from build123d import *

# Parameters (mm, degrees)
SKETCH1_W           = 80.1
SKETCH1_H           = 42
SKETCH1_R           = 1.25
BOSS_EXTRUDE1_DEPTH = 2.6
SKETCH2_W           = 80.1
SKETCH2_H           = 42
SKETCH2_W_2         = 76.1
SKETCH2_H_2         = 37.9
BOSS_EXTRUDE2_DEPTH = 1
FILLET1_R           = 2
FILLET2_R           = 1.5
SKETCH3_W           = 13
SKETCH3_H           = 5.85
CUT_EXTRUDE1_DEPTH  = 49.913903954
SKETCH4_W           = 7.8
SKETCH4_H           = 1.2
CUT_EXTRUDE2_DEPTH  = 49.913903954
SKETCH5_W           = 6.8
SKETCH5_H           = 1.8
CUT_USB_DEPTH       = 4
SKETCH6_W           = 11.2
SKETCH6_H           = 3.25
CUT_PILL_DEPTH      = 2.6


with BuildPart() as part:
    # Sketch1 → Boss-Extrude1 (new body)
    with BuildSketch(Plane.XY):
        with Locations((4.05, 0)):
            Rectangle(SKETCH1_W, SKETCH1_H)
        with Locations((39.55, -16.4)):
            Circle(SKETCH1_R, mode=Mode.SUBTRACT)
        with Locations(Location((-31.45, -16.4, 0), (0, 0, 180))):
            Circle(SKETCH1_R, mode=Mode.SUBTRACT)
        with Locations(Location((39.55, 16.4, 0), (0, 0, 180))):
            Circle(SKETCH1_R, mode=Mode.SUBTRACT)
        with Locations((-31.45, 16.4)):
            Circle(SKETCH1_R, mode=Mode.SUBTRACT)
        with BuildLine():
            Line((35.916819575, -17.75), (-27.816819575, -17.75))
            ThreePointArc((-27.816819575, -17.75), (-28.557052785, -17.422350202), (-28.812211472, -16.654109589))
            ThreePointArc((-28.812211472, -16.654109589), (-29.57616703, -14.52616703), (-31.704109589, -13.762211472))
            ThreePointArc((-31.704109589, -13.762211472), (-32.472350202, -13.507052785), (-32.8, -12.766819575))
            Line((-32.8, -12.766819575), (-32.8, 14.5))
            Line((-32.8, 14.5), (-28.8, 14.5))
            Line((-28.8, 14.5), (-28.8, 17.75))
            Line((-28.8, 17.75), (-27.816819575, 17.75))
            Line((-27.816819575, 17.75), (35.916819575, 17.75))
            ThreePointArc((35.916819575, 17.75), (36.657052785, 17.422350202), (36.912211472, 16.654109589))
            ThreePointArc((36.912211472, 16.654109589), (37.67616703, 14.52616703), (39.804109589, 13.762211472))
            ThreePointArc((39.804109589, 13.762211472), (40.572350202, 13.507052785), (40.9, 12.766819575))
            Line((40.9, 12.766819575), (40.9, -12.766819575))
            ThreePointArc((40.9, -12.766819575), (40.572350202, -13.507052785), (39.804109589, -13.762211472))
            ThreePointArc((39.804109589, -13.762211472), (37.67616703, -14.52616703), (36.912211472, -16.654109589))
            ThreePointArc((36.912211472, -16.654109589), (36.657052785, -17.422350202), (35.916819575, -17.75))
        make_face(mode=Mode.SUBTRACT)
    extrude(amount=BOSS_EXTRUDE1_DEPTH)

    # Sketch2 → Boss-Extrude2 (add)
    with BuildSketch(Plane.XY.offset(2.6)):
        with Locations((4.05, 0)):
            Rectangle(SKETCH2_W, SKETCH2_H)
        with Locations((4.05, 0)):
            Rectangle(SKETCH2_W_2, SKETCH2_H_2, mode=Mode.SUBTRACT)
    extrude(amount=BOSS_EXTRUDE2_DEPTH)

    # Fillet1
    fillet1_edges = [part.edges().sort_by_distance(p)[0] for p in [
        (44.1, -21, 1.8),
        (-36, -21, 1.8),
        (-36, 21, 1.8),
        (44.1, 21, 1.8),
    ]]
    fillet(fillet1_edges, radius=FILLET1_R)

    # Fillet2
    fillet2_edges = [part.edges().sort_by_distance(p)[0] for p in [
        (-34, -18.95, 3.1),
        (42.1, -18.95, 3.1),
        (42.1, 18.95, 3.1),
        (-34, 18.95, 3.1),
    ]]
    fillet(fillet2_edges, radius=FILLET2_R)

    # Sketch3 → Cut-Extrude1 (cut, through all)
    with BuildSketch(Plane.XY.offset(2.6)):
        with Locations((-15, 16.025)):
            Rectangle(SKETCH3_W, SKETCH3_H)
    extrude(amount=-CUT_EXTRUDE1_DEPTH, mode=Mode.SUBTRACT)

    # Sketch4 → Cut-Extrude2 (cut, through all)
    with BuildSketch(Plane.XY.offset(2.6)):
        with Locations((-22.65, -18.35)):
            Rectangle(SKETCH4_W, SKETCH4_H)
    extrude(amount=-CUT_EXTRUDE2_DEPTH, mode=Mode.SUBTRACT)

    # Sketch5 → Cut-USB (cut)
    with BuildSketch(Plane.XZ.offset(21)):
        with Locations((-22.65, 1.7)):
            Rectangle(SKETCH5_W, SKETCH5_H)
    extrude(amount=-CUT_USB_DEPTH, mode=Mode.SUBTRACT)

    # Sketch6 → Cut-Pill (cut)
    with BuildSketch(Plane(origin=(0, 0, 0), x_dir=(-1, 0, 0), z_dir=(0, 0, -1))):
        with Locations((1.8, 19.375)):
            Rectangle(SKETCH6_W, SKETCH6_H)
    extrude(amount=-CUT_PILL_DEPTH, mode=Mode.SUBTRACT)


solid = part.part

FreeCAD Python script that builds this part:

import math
import FreeCAD as App
import Part
import Sketcher


def edges_at(feature, points):
    """Names of the edges that pass closest to the given points."""
    edges = feature.Shape.Edges
    near = lambda p: min(range(len(edges)), key=lambda i: edges[i].distToShape(Part.Vertex(*p))[0])
    return sorted({f"Edge{near(p) + 1}" for p in points})


def add_polygon(sketch, points):
    """Adds a closed chain of lines whose ends are joined by coincident constraints."""
    first, n = sketch.GeometryCount, len(points)
    for a, b in zip(points, points[1:] + points[:1]):
        sketch.addGeometry(Part.LineSegment(App.Vector(*a, 0), App.Vector(*b, 0)), False)
    for i in range(n):
        sketch.addConstraint(Sketcher.Constraint("Coincident", first + i, 2, first + (i + 1) % n, 1))

doc = App.newDocument("Part")
body = doc.addObject("PartDesign::Body", "Body")

# Sketch on XY plane
sketch1 = body.newObject("Sketcher::SketchObject", "Sketch")
sketch1.AttachmentSupport = (doc.getObject("XY_Plane"), [""])
sketch1.MapMode = "FlatFace"
add_polygon(sketch1, [(-36, 21), (-36, -21), (44.1, -21), (44.1, 21)])  # lines 0-3
sketch1.addGeometry(Part.Circle(App.Vector(-31.4, -16.4, 0), App.Vector(0, 0, 1), 1.2), False)  # 4
sketch1.addGeometry(Part.Circle(App.Vector(39.5, -16.4, 0), App.Vector(0, 0, 1), 1.2), False)  # 5
sketch1.addGeometry(Part.Circle(App.Vector(-31.4, 16.4, 0), App.Vector(0, 0, 1), 1.2), False)  # 6
sketch1.addGeometry(Part.ArcOfCircle(Part.Circle(App.Vector(35.9, -16.8, 0), App.Vector(0, 0, 1), 1), math.radians(-90), math.radians(6)), False)  # 7
sketch1.addGeometry(Part.LineSegment(App.Vector(35.9, -17.8, 0), App.Vector(-27.8, -17.8, 0)), False)  # 8
sketch1.addGeometry(Part.ArcOfCircle(Part.Circle(App.Vector(-27.8, -16.8, 0), App.Vector(0, 0, 1), 1), math.radians(174), math.radians(270)), False)  # 9
sketch1.addGeometry(Part.ArcOfCircle(Part.Circle(App.Vector(-31.5, -16.4, 0), App.Vector(0, 0, 1), 2.7), math.radians(-6), math.radians(96)), False)  # 10
sketch1.addGeometry(Part.ArcOfCircle(Part.Circle(App.Vector(-31.8, -12.8, 0), App.Vector(0, 0, 1), 1), math.radians(-180), math.radians(-84)), False)  # 11
sketch1.addGeometry(Part.LineSegment(App.Vector(-32.8, -12.8, 0), App.Vector(-32.8, 14.5, 0)), False)  # 12
sketch1.addGeometry(Part.LineSegment(App.Vector(-32.8, 14.5, 0), App.Vector(-28.8, 14.5, 0)), False)  # 13
sketch1.addGeometry(Part.LineSegment(App.Vector(-28.8, 14.5, 0), App.Vector(-28.8, 17.8, 0)), False)  # 14
sketch1.addGeometry(Part.LineSegment(App.Vector(-28.8, 17.8, 0), App.Vector(35.9, 17.8, 0)), False)  # 15
sketch1.addGeometry(Part.ArcOfCircle(Part.Circle(App.Vector(35.9, 16.8, 0), App.Vector(0, 0, 1), 1), math.radians(-6), math.radians(90)), False)  # 16
sketch1.addGeometry(Part.ArcOfCircle(Part.Circle(App.Vector(39.6, 16.4, 0), App.Vector(0, 0, 1), 2.7), math.radians(174), math.radians(276)), False)  # 17
sketch1.addGeometry(Part.ArcOfCircle(Part.Circle(App.Vector(39.9, 12.8, 0), App.Vector(0, 0, 1), 1), math.radians(0), math.radians(96)), False)  # 18
sketch1.addGeometry(Part.LineSegment(App.Vector(40.9, 12.8, 0), App.Vector(40.9, -12.8, 0)), False)  # 19
sketch1.addGeometry(Part.ArcOfCircle(Part.Circle(App.Vector(39.9, -12.8, 0), App.Vector(0, 0, 1), 1), math.radians(-96), math.radians(0)), False)  # 20
sketch1.addGeometry(Part.ArcOfCircle(Part.Circle(App.Vector(39.6, -16.4, 0), App.Vector(0, 0, 1), 2.7), math.radians(84), math.radians(186)), False)  # 21
sketch1.addGeometry(Part.Circle(App.Vector(39.5, 16.4, 0), App.Vector(0, 0, 1), 1.2), False)  # 22
sketch1.addConstraint(Sketcher.Constraint("Tangent", 7, 1, 8, 1))
sketch1.addConstraint(Sketcher.Constraint("Tangent", 8, 2, 9, 2))
sketch1.addConstraint(Sketcher.Constraint("Tangent", 9, 1, 10, 1))
sketch1.addConstraint(Sketcher.Constraint("Tangent", 10, 2, 11, 2))
sketch1.addConstraint(Sketcher.Constraint("Tangent", 11, 1, 12, 1))
sketch1.addConstraint(Sketcher.Constraint("Coincident", 12, 2, 13, 1))
sketch1.addConstraint(Sketcher.Constraint("Coincident", 13, 2, 14, 1))
sketch1.addConstraint(Sketcher.Constraint("Coincident", 14, 2, 15, 1))
sketch1.addConstraint(Sketcher.Constraint("Tangent", 15, 2, 16, 2))
sketch1.addConstraint(Sketcher.Constraint("Tangent", 16, 1, 17, 1))
sketch1.addConstraint(Sketcher.Constraint("Tangent", 17, 2, 18, 2))
sketch1.addConstraint(Sketcher.Constraint("Tangent", 18, 1, 19, 1))
sketch1.addConstraint(Sketcher.Constraint("Tangent", 19, 2, 20, 2))
sketch1.addConstraint(Sketcher.Constraint("Tangent", 20, 1, 21, 1))
sketch1.addConstraint(Sketcher.Constraint("Tangent", 21, 2, 7, 2))
sketch1.addConstraint(Sketcher.Constraint("Vertical", 0))
sketch1.addConstraint(Sketcher.Constraint("Horizontal", 1))
sketch1.addConstraint(Sketcher.Constraint("Vertical", 2))
sketch1.addConstraint(Sketcher.Constraint("Horizontal", 3))
sketch1.addConstraint(Sketcher.Constraint("Horizontal", 8))
sketch1.addConstraint(Sketcher.Constraint("Vertical", 12))
sketch1.addConstraint(Sketcher.Constraint("Horizontal", 13))
sketch1.addConstraint(Sketcher.Constraint("Vertical", 14))
sketch1.addConstraint(Sketcher.Constraint("Horizontal", 15))
sketch1.addConstraint(Sketcher.Constraint("Vertical", 19))
sketch1.addConstraint(Sketcher.Constraint("Coincident", 10, 3, 4, 3))
sketch1.addConstraint(Sketcher.Constraint("Coincident", 21, 3, 5, 3))
sketch1.addConstraint(Sketcher.Constraint("Coincident", 22, 3, 17, 3))
sketch1.addConstraint(Sketcher.Constraint("Equal", 4, 5))
sketch1.addConstraint(Sketcher.Constraint("Equal", 5, 6))
sketch1.addConstraint(Sketcher.Constraint("Equal", 7, 9))
sketch1.addConstraint(Sketcher.Constraint("Equal", 9, 11))
sketch1.addConstraint(Sketcher.Constraint("Equal", 11, 16))
sketch1.addConstraint(Sketcher.Constraint("Equal", 10, 17))
sketch1.addConstraint(Sketcher.Constraint("Equal", 16, 18))
sketch1.addConstraint(Sketcher.Constraint("Equal", 18, 20))
sketch1.addConstraint(Sketcher.Constraint("Equal", 17, 21))
sketch1.addConstraint(Sketcher.Constraint("Equal", 6, 22))
sketch1.addConstraint(Sketcher.Constraint("Symmetric", 4, 3, 6, 3, -1))
sketch1.addConstraint(Sketcher.Constraint("Symmetric", 7, 3, 16, 3, -1))
sketch1.addConstraint(Sketcher.Constraint("Horizontal", 4, 3, 5, 3))
sketch1.addConstraint(Sketcher.Constraint("Horizontal", 6, 3, 17, 3))
sketch1.addConstraint(Sketcher.Constraint("Horizontal", 11, 3, 20, 3))
sketch1.addConstraint(Sketcher.Constraint("Radius", 7, 1.0))
sketch1.addConstraint(Sketcher.Constraint("Diameter", 4, 2.5))
sketch1.addConstraint(Sketcher.Constraint("DistanceX", 13, 1, 13, 2, 4.0))
sketch1.addConstraint(Sketcher.Constraint("DistanceY", 0, 2, 0, 1, 42.0))
sketch1.addConstraint(Sketcher.Constraint("Radius", 10, 2.65))
sketch1.addConstraint(Sketcher.Constraint("DistanceX", 1, 1, 1, 2, 80.1))
sketch1.addConstraint(Sketcher.Constraint("DistanceX", 0, 2, -1, 1, 36.0))
sketch1.addConstraint(Sketcher.Constraint("DistanceY", 0, 2, -1, 1, 21.0))
sketch1.addConstraint(Sketcher.Constraint("DistanceX", 4, 3, 5, 3, 71.0))
sketch1.addConstraint(Sketcher.Constraint("DistanceY", 14, 1, 14, 2, 3.25))
sketch1.addConstraint(Sketcher.Constraint("DistanceY", 4, 3, -1, 1, 16.4))
sketch1.addConstraint(Sketcher.Constraint("DistanceX", 11, 3, -1, 1, 31.8))
sketch1.addConstraint(Sketcher.Constraint("DistanceX", -1, 1, 18, 3, 39.9))
sketch1.addConstraint(Sketcher.Constraint("DistanceY", -1, 1, 12, 2, 14.5))
pad1 = body.newObject("PartDesign::Pad", "Pad")
pad1.Profile = sketch1
pad1.Length = 2.6

# Sketch on XY plane
sketch2 = body.newObject("Sketcher::SketchObject", "Sketch001")
sketch2.AttachmentSupport = (doc.getObject("XY_Plane"), [""])
sketch2.MapMode = "FlatFace"
sketch2.AttachmentOffset = App.Placement(App.Vector(0, 0, 2.6), App.Rotation())
add_polygon(sketch2, [(-36, 21), (-36, -21), (44, -21), (44, 21)])  # lines 0-3
add_polygon(sketch2, [(42, -19), (-34, -19), (-34, 19), (42, 19)])  # lines 4-7
sketch2.addConstraint(Sketcher.Constraint("Vertical", 0))
sketch2.addConstraint(Sketcher.Constraint("Horizontal", 1))
sketch2.addConstraint(Sketcher.Constraint("Vertical", 2))
sketch2.addConstraint(Sketcher.Constraint("Horizontal", 3))
sketch2.addConstraint(Sketcher.Constraint("Horizontal", 4))
sketch2.addConstraint(Sketcher.Constraint("Vertical", 5))
sketch2.addConstraint(Sketcher.Constraint("Horizontal", 6))
sketch2.addConstraint(Sketcher.Constraint("Vertical", 7))
sketch2.addConstraint(Sketcher.Constraint("DistanceY", 0, 2, 0, 1, 42.0))
sketch2.addConstraint(Sketcher.Constraint("DistanceX", 1, 1, 1, 2, 80.1))
sketch2.addConstraint(Sketcher.Constraint("DistanceX", 4, 2, 4, 1, 76.1))
sketch2.addConstraint(Sketcher.Constraint("DistanceY", 5, 1, 5, 2, 37.9))
sketch2.addConstraint(Sketcher.Constraint("DistanceX", 0, 2, -1, 1, 36.0))
sketch2.addConstraint(Sketcher.Constraint("DistanceY", 0, 2, -1, 1, 21.0))
sketch2.addConstraint(Sketcher.Constraint("DistanceX", 4, 2, -1, 1, 34.0))
sketch2.addConstraint(Sketcher.Constraint("DistanceY", 4, 2, -1, 1, 18.95))
pad2 = body.newObject("PartDesign::Pad", "Pad001")
pad2.Profile = sketch2
pad2.Length = 1
doc.recompute()

fillet = body.newObject("PartDesign::Fillet", "Fillet")
fillet.Base = (pad2, edges_at(pad2, [
    (44.1, -21, 1.8),
    (-36, -21, 1.8),
    (-36, 21, 1.8),
    (44.1, 21, 1.8),
]))
fillet.Radius = 2
doc.recompute()

fillet2 = body.newObject("PartDesign::Fillet", "Fillet001")
fillet2.Base = (fillet, edges_at(fillet, [
    (-34, -18.95, 3.1),
    (42.1, -18.95, 3.1),
    (42.1, 18.95, 3.1),
    (-34, 18.95, 3.1),
]))
fillet2.Radius = 1.5

# Sketch on XY plane
sketch3 = body.newObject("Sketcher::SketchObject", "Sketch002")
sketch3.AttachmentSupport = (doc.getObject("XY_Plane"), [""])
sketch3.MapMode = "FlatFace"
sketch3.AttachmentOffset = App.Placement(App.Vector(0, 0, 2.6), App.Rotation())
add_polygon(sketch3, [(-22, 19), (-22, 13), (-8, 13), (-8, 19)])  # lines 0-3
sketch3.addConstraint(Sketcher.Constraint("Vertical", 0))
sketch3.addConstraint(Sketcher.Constraint("Horizontal", 1))
sketch3.addConstraint(Sketcher.Constraint("Vertical", 2))
sketch3.addConstraint(Sketcher.Constraint("Horizontal", 3))
sketch3.addConstraint(Sketcher.Constraint("DistanceX", 1, 1, 1, 2, 13.0))
sketch3.addConstraint(Sketcher.Constraint("DistanceY", 0, 2, 0, 1, 5.85))
sketch3.addConstraint(Sketcher.Constraint("DistanceX", 0, 2, -1, 1, 21.5))
sketch3.addConstraint(Sketcher.Constraint("DistanceY", -1, 1, 0, 2, 13.1))
pocket1 = body.newObject("PartDesign::Pocket", "Pocket")
pocket1.Profile = sketch3
pocket1.Type = "ThroughAll"

# Sketch on XY plane
sketch4 = body.newObject("Sketcher::SketchObject", "Sketch003")
sketch4.AttachmentSupport = (doc.getObject("XY_Plane"), [""])
sketch4.MapMode = "FlatFace"
sketch4.AttachmentOffset = App.Placement(App.Vector(0, 0, 2.6), App.Rotation())
add_polygon(sketch4, [(-26.6, -17.8), (-26.6, -18.9), (-18.8, -18.9), (-18.8, -17.8)])  # lines 0-3
sketch4.addConstraint(Sketcher.Constraint("Vertical", 0))
sketch4.addConstraint(Sketcher.Constraint("Horizontal", 1))
sketch4.addConstraint(Sketcher.Constraint("Vertical", 2))
sketch4.addConstraint(Sketcher.Constraint("Horizontal", 3))
sketch4.addConstraint(Sketcher.Constraint("DistanceX", 1, 1, 1, 2, 7.8))
sketch4.addConstraint(Sketcher.Constraint("DistanceY", 0, 2, 0, 1, 1.2))
sketch4.addConstraint(Sketcher.Constraint("DistanceX", 0, 2, -1, 1, 26.55))
sketch4.addConstraint(Sketcher.Constraint("DistanceY", 0, 2, -1, 1, 18.95))
pocket2 = body.newObject("PartDesign::Pocket", "Pocket001")
pocket2.Profile = sketch4
pocket2.Type = "ThroughAll"

# Sketch on XZ plane
sketch5 = body.newObject("Sketcher::SketchObject", "Sketch004")
sketch5.AttachmentSupport = (doc.getObject("XZ_Plane"), [""])
sketch5.MapMode = "FlatFace"
sketch5.AttachmentOffset = App.Placement(App.Vector(0, 0, 21), App.Rotation())
add_polygon(sketch5, [(-26.1, 2.6), (-26.1, 0.8), (-19.2, 0.8), (-19.2, 2.6)])  # lines 0-3
sketch5.addConstraint(Sketcher.Constraint("Vertical", 0))
sketch5.addConstraint(Sketcher.Constraint("Horizontal", 1))
sketch5.addConstraint(Sketcher.Constraint("Vertical", 2))
sketch5.addConstraint(Sketcher.Constraint("Horizontal", 3))
sketch5.addConstraint(Sketcher.Constraint("DistanceX", 1, 1, 1, 2, 6.8))
sketch5.addConstraint(Sketcher.Constraint("DistanceY", 0, 2, 0, 1, 1.8))
sketch5.addConstraint(Sketcher.Constraint("DistanceY", -1, 1, 0, 2, 0.8))
sketch5.addConstraint(Sketcher.Constraint("DistanceX", 0, 2, -1, 1, 26.05))
pocket3 = body.newObject("PartDesign::Pocket", "Pocket002")
pocket3.Profile = sketch5
pocket3.Length = 4

# Sketch on XY plane
sketch6 = body.newObject("Sketcher::SketchObject", "Sketch005")
sketch6.AttachmentSupport = (doc.getObject("XY_Plane"), [""])
sketch6.MapMode = "FlatFace"
add_polygon(sketch6, [(3.8, 21), (3.8, 17.8), (-7.4, 17.8), (-7.4, 21)])  # lines 0-3
sketch6.addConstraint(Sketcher.Constraint("Vertical", 0))
sketch6.addConstraint(Sketcher.Constraint("Horizontal", 1))
sketch6.addConstraint(Sketcher.Constraint("Vertical", 2))
sketch6.addConstraint(Sketcher.Constraint("Horizontal", 3))
sketch6.addConstraint(Sketcher.Constraint("DistanceX", 1, 2, 1, 1, 11.2))
sketch6.addConstraint(Sketcher.Constraint("DistanceY", -1, 1, 2, 2, 21.0))
sketch6.addConstraint(Sketcher.Constraint("DistanceY", 0, 2, 0, 1, 3.25))
sketch6.addConstraint(Sketcher.Constraint("DistanceX", -1, 1, 0, 2, 3.8))
pocket4 = body.newObject("PartDesign::Pocket", "Pocket003")
pocket4.Profile = sketch6
pocket4.Length = 2.6
pocket4.Reversed = True

doc.recompute()
